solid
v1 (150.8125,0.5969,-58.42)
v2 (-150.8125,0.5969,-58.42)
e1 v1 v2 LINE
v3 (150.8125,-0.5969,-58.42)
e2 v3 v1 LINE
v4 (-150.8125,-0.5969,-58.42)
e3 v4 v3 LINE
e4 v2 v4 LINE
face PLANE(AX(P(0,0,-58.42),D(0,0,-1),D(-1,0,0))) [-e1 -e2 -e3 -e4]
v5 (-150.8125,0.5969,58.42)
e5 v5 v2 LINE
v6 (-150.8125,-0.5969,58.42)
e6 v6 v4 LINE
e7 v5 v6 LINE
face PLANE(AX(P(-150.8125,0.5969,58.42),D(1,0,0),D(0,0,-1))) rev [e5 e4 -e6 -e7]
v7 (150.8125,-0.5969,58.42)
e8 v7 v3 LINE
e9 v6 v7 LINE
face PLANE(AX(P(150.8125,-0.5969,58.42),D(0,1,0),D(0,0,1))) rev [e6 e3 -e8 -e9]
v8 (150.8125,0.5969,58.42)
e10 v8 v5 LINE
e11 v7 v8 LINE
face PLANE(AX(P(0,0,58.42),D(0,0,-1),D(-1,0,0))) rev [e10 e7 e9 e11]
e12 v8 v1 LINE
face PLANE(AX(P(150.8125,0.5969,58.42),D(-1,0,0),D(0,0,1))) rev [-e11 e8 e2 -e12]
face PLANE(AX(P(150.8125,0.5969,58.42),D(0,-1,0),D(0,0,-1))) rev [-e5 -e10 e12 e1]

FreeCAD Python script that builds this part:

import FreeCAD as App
import Part
import Sketcher
Q = App.Units.Quantity


def add_polygon(sketch, points):
    """Adds a closed chain of lines whose ends are joined by coincident constraints."""
    first, n = sketch.GeometryCount, len(points)
    for a, b in zip(points, points[1:] + points[:1]):
        sketch.addGeometry(Part.LineSegment(App.Vector(*a, 0), App.Vector(*b, 0)), False)
    for i in range(n):
        sketch.addConstraint(Sketcher.Constraint("Coincident", first + i, 2, first + (i + 1) % n, 1))

doc = App.newDocument("Part")
params = doc.addObject("Spreadsheet::Sheet", "Params")
for row, (alias, value) in enumerate([
    ("sketch1_width", "11.875 in"),
    ("sketch1_height", "0.047 in"),
    ("pad1_length", "2.3 in"),
    ("pad1_length2", "2.3 in"),
], start=1):
    params.set(f"A{row}", alias)
    params.set(f"B{row}", "=" + value)
    params.setAlias(f"B{row}", alias)

body = doc.addObject("PartDesign::Body", "Body")

sketch1 = body.newObject("Sketcher::SketchObject", "Sketch")
sketch1.AttachmentSupport = (doc.getObject("XY_Plane"), [""])
sketch1.MapMode = "FlatFace"
add_polygon(sketch1, [(-150.8, 0.6), (-150.8, -0.6), (150.8, -0.6), (150.8, 0.6)])
sketch1.addConstraint(Sketcher.Constraint("Vertical", 0))
sketch1.addConstraint(Sketcher.Constraint("Horizontal", 1))
sketch1.addConstraint(Sketcher.Constraint("Vertical", 2))
sketch1.addConstraint(Sketcher.Constraint("Horizontal", 3))
sketch1.addConstraint(Sketcher.Constraint("Symmetric", 0, 2, 2, 2, -1, 1))
sketch1.addConstraint(Sketcher.Constraint("DistanceX", 1, 1, 1, 2, Q("11.875 in")))
sketch1.addConstraint(Sketcher.Constraint("DistanceY", 0, 2, 0, 1, Q("0.047 in")))
sketch1.setExpression("Constraints[9]", "Params.sketch1_width")
sketch1.setExpression("Constraints[10]", "Params.sketch1_height")
pad1 = body.newObject("PartDesign::Pad", "Pad")
pad1.Profile = sketch1
pad1.Type = "TwoLengths"
pad1.setExpression("Length", "Params.pad1_length")
pad1.setExpression("Length2", "Params.pad1_length2")

doc.recompute()
